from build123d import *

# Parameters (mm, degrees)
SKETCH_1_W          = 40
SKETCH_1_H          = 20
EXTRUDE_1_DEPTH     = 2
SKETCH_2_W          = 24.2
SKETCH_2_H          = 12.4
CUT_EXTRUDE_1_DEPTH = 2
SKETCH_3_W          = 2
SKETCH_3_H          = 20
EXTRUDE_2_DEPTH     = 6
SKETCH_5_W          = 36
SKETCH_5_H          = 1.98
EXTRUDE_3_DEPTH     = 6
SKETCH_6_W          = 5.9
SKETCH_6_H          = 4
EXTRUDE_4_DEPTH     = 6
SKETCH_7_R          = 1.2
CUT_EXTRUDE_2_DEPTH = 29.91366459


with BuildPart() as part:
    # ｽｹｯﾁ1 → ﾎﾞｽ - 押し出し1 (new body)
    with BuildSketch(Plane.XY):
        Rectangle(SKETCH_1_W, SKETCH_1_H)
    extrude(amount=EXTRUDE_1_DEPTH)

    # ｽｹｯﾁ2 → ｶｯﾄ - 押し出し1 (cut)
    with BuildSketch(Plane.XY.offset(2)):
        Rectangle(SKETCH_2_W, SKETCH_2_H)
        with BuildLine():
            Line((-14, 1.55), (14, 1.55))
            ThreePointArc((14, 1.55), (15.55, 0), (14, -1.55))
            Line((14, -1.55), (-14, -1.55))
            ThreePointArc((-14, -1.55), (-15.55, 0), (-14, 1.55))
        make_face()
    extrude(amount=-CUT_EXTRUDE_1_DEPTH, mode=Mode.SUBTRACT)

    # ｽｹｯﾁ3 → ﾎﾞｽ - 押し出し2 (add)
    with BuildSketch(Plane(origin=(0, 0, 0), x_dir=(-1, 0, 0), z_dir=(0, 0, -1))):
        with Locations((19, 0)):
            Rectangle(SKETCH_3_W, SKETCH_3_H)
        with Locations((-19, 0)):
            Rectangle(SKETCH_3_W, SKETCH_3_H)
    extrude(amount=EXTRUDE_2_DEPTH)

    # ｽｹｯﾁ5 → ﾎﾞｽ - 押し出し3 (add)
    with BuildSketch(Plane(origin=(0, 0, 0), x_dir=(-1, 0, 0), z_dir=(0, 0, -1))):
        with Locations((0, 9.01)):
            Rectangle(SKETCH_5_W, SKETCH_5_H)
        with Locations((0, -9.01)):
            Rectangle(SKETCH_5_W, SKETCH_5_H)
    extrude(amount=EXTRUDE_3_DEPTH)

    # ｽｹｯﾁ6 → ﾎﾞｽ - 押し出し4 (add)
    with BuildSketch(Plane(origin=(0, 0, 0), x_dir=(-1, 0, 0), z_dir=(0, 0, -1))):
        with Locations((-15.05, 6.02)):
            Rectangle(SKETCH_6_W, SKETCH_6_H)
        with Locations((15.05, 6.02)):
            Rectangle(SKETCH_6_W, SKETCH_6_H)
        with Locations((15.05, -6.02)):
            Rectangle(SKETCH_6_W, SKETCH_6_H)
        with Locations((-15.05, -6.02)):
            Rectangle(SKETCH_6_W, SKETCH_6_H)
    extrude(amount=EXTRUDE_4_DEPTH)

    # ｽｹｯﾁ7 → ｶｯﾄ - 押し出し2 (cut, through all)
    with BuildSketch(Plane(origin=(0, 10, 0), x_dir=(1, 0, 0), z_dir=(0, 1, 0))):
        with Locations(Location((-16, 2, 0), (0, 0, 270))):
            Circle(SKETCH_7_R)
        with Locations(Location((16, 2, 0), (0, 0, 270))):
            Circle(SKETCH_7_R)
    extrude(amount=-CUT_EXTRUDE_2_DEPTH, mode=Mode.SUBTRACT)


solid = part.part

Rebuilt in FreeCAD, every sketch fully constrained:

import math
import FreeCAD as App
import Part
import Sketcher

V = App.Vector

doc = App.newDocument("Part")
body = doc.addObject("PartDesign::Body", "Body")

# Sketch on XY plane
sketch1 = body.newObject("Sketcher::SketchObject", "Sketch")
sketch1.AttachmentSupport = (doc.getObject("XY_Plane"), [""])
sketch1.MapMode = "FlatFace"
sketch1.addGeometry([
    Part.LineSegment(V(-20, 10, 0), V(-20, -10, 0)),
    Part.LineSegment(V(-20, -10, 0), V(20, -10, 0)),
    Part.LineSegment(V(20, -10, 0), V(20, 10, 0)),
    Part.LineSegment(V(20, 10, 0), V(-20, 10, 0)),
], False)
sketch1.addConstraint([
    Sketcher.Constraint("Coincident", 0, 2, 1, 1),
    Sketcher.Constraint("Coincident", 1, 2, 2, 1),
    Sketcher.Constraint("Coincident", 2, 2, 3, 1),
    Sketcher.Constraint("Coincident", 3, 2, 0, 1),
    Sketcher.Constraint("Vertical", 0),
    Sketcher.Constraint("Horizontal", 1),
    Sketcher.Constraint("Vertical", 2),
    Sketcher.Constraint("Horizontal", 3),
    Sketcher.Constraint("Symmetric", 0, 2, 2, 2, -1, 1),
    Sketcher.Constraint("DistanceX", 1, 1, 1, 2, 40.0),
    Sketcher.Constraint("DistanceY", 0, 2, 0, 1, 20.0),
])
pad1 = body.newObject("PartDesign::Pad", "Pad")
pad1.Profile = sketch1
pad1.Length = 2

# Sketch on XY plane
sketch2 = body.newObject("Sketcher::SketchObject", "Sketch001")
sketch2.AttachmentSupport = (doc.getObject("XY_Plane"), [""])
sketch2.MapMode = "FlatFace"
sketch2.AttachmentOffset = App.Placement(V(0, 0, 2), App.Rotation())
sketch2.addGeometry([
    Part.LineSegment(V(-12.1, -1.55, 0), V(-12.1, -6.2, 0)),  # 0
    Part.LineSegment(V(-12.1, -6.2, 0), V(12.1, -6.2, 0)),  # 1
    Part.LineSegment(V(12.1, -6.2, 0), V(12.1, -1.55, 0)),  # 2
    Part.LineSegment(V(12.1, -1.55, 0), V(14, -1.55, 0)),  # 3
    Part.ArcOfCircle(Part.Circle(V(14, 0, 0), V(0, 0, 1), 1.55), math.radians(-90), math.radians(90)),  # 4
    Part.LineSegment(V(14, 1.55, 0), V(12.1, 1.55, 0)),  # 5
    Part.LineSegment(V(12.1, 1.55, 0), V(12.1, 6.2, 0)),  # 6
    Part.LineSegment(V(12.1, 6.2, 0), V(-12.1, 6.2, 0)),  # 7
    Part.LineSegment(V(-12.1, 6.2, 0), V(-12.1, 1.55, 0)),  # 8
    Part.LineSegment(V(-12.1, 1.55, 0), V(-14, 1.55, 0)),  # 9
    Part.ArcOfCircle(Part.Circle(V(-14, 0, 0), V(0, 0, 1), 1.55), math.radians(90), math.radians(270)),  # 10
    Part.LineSegment(V(-14, -1.55, 0), V(-12.1, -1.55, 0)),  # 11
], False)
sketch2.addConstraint([
    Sketcher.Constraint("Coincident", 0, 2, 1, 1),
    Sketcher.Constraint("Coincident", 1, 2, 2, 1),
    Sketcher.Constraint("Coincident", 2, 2, 3, 1),
    Sketcher.Constraint("Tangent", 3, 2, 4, 1),
    Sketcher.Constraint("Tangent", 4, 2, 5, 1),
    Sketcher.Constraint("Coincident", 5, 2, 6, 1),
    Sketcher.Constraint("Coincident", 6, 2, 7, 1),
    Sketcher.Constraint("Coincident", 7, 2, 8, 1),
    Sketcher.Constraint("Coincident", 8, 2, 9, 1),
    Sketcher.Constraint("Tangent", 9, 2, 10, 1),
    Sketcher.Constraint("Tangent", 10, 2, 11, 1),
    Sketcher.Constraint("Coincident", 11, 2, 0, 1),
    Sketcher.Constraint("Vertical", 0),
    Sketcher.Constraint("Horizontal", 1),
    Sketcher.Constraint("Vertical", 2),
    Sketcher.Constraint("Horizontal", 3),
    Sketcher.Constraint("Horizontal", 5),
    Sketcher.Constraint("Vertical", 6),
    Sketcher.Constraint("Horizontal", 7),
    Sketcher.Constraint("Vertical", 8),
    Sketcher.Constraint("Horizontal", 9),
    Sketcher.Constraint("Horizontal", 11),
    Sketcher.Constraint("Equal", 4, 10),
    Sketcher.Constraint("Symmetric", 4, 3, 10, 3, -1, 1),
    Sketcher.Constraint("Symmetric", 0, 2, 6, 2, -1, 1),
    Sketcher.Constraint("Symmetric", 5, 2, 8, 2, -2),
    Sketcher.Constraint("Vertical", 2, 2, 5, 2),
    Sketcher.Constraint("Radius", 4, 1.55),
    Sketcher.Constraint("DistanceX", 1, 1, 1, 2, 24.2),
    Sketcher.Constraint("DistanceX", 3, 1, 3, 2, 1.9),
    Sketcher.Constraint("DistanceY", 0, 2, 0, 1, 4.65),
])
pocket1 = body.newObject("PartDesign::Pocket", "Pocket")
pocket1.Profile = sketch2
pocket1.Length = 2

# Sketch on XY plane
sketch3 = body.newObject("Sketcher::SketchObject", "Sketch002")
sketch3.AttachmentSupport = (doc.getObject("XY_Plane"), [""])
sketch3.MapMode = "FlatFace"
sketch3.addGeometry([
    Part.LineSegment(V(-18, 10, 0), V(-18, -10, 0)),  # 0
    Part.LineSegment(V(-18, -10, 0), V(-20, -10, 0)),  # 1
    Part.LineSegment(V(-20, -10, 0), V(-20, 10, 0)),  # 2
    Part.LineSegment(V(-20, 10, 0), V(-18, 10, 0)),  # 3
    Part.LineSegment(V(20, 10, 0), V(20, -10, 0)),  # 4
    Part.LineSegment(V(20, -10, 0), V(18, -10, 0)),  # 5
    Part.LineSegment(V(18, -10, 0), V(18, 10, 0)),  # 6
    Part.LineSegment(V(18, 10, 0), V(20, 10, 0)),  # 7
], False)
sketch3.addConstraint([
    Sketcher.Constraint("Coincident", 0, 2, 1, 1),
    Sketcher.Constraint("Coincident", 1, 2, 2, 1),
    Sketcher.Constraint("Coincident", 2, 2, 3, 1),
    Sketcher.Constraint("Coincident", 3, 2, 0, 1),
    Sketcher.Constraint("Coincident", 4, 2, 5, 1),
    Sketcher.Constraint("Coincident", 5, 2, 6, 1),
    Sketcher.Constraint("Coincident", 6, 2, 7, 1),
    Sketcher.Constraint("Coincident", 7, 2, 4, 1),
    Sketcher.Constraint("Vertical", 0),
    Sketcher.Constraint("Horizontal", 1),
    Sketcher.Constraint("Vertical", 2),
    Sketcher.Constraint("Horizontal", 3),
    Sketcher.Constraint("Vertical", 4),
    Sketcher.Constraint("Horizontal", 5),
    Sketcher.Constraint("Vertical", 6),
    Sketcher.Constraint("Horizontal", 7),
    Sketcher.Constraint("Symmetric", 2, 2, 4, 2, -1, 1),
    Sketcher.Constraint("Symmetric", 0, 2, 6, 2, -1, 1),
    Sketcher.Constraint("Horizontal", 1, 2, 4, 2),
    Sketcher.Constraint("DistanceX", 1, 2, 1, 1, 2.0),
    Sketcher.Constraint("DistanceY", 0, 2, 0, 1, 20.0),
    Sketcher.Constraint("DistanceX", 0, 2, -1, 1, 18.0),
])
pad2 = body.newObject("PartDesign::Pad", "Pad001")
pad2.Profile = sketch3
pad2.Length = 6
pad2.Reversed = True

# Sketch on XY plane
sketch4 = body.newObject("Sketcher::SketchObject", "Sketch003")
sketch4.AttachmentSupport = (doc.getObject("XY_Plane"), [""])
sketch4.MapMode = "FlatFace"
sketch4.addGeometry([
    Part.LineSegment(V(18, 10, 0), V(18, 8.02, 0)),  # 0
    Part.LineSegment(V(18, 8.02, 0), V(-18, 8.02, 0)),  # 1
    Part.LineSegment(V(-18, 8.02, 0), V(-18, 10, 0)),  # 2
    Part.LineSegment(V(-18, 10, 0), V(18, 10, 0)),  # 3
    Part.LineSegment(V(18, -8.02, 0), V(18, -10, 0)),  # 4
    Part.LineSegment(V(18, -10, 0), V(-18, -10, 0)),  # 5
    Part.LineSegment(V(-18, -10, 0), V(-18, -8.02, 0)),  # 6
    Part.LineSegment(V(-18, -8.02, 0), V(18, -8.02, 0)),  # 7
], False)
sketch4.addConstraint([
    Sketcher.Constraint("Coincident", 0, 2, 1, 1),
    Sketcher.Constraint("Coincident", 1, 2, 2, 1),
    Sketcher.Constraint("Coincident", 2, 2, 3, 1),
    Sketcher.Constraint("Coincident", 3, 2, 0, 1),
    Sketcher.Constraint("Coincident", 4, 2, 5, 1),
    Sketcher.Constraint("Coincident", 5, 2, 6, 1),
    Sketcher.Constraint("Coincident", 6, 2, 7, 1),
    Sketcher.Constraint("Coincident", 7, 2, 4, 1),
    Sketcher.Constraint("Vertical", 0),
    Sketcher.Constraint("Horizontal", 1),
    Sketcher.Constraint("Vertical", 2),
    Sketcher.Constraint("Horizontal", 3),
    Sketcher.Constraint("Vertical", 4),
    Sketcher.Constraint("Horizontal", 5),
    Sketcher.Constraint("Vertical", 6),
    Sketcher.Constraint("Horizontal", 7),
    Sketcher.Constraint("Symmetric", 2, 2, 4, 2, -1, 1),
    Sketcher.Constraint("Symmetric", 0, 2, 6, 2, -1, 1),
    Sketcher.Constraint("Vertical", 3, 2, 4, 2),
    Sketcher.Constraint("DistanceX", 1, 2, 1, 1, 36.0),
    Sketcher.Constraint("DistanceY", -1, 1, 2, 2, 10.0),
    Sketcher.Constraint("DistanceY", 0, 2, 0, 1, 1.98),
])
pad3 = body.newObject("PartDesign::Pad", "Pad002")
pad3.Profile = sketch4
pad3.Length = 6
pad3.Reversed = True

# Sketch on XY plane
sketch5 = body.newObject("Sketcher::SketchObject", "Sketch004")
sketch5.AttachmentSupport = (doc.getObject("XY_Plane"), [""])
sketch5.MapMode = "FlatFace"
sketch5.addGeometry([
    Part.LineSegment(V(18, 8.02, 0), V(18, 4.02, 0)),  # 0
    Part.LineSegment(V(18, 4.02, 0), V(12.1, 4.02, 0)),  # 1
    Part.LineSegment(V(12.1, 4.02, 0), V(12.1, 8.02, 0)),  # 2
    Part.LineSegment(V(12.1, 8.02, 0), V(18, 8.02, 0)),  # 3
    Part.LineSegment(V(-12.1, 8.02, 0), V(-12.1, 4.02, 0)),  # 4
    Part.LineSegment(V(-12.1, 4.02, 0), V(-18, 4.02, 0)),  # 5
    Part.LineSegment(V(-18, 4.02, 0), V(-18, 8.02, 0)),  # 6
    Part.LineSegment(V(-18, 8.02, 0), V(-12.1, 8.02, 0)),  # 7
    Part.LineSegment(V(-12.1, -4.02, 0), V(-12.1, -8.02, 0)),  # 8
    Part.LineSegment(V(-12.1, -8.02, 0), V(-18, -8.02, 0)),  # 9
    Part.LineSegment(V(-18, -8.02, 0), V(-18, -4.02, 0)),  # 10
    Part.LineSegment(V(-18, -4.02, 0), V(-12.1, -4.02, 0)),  # 11
    Part.LineSegment(V(18, -4.02, 0), V(18, -8.02, 0)),  # 12
    Part.LineSegment(V(18, -8.02, 0), V(12.1, -8.02, 0)),  # 13
    Part.LineSegment(V(12.1, -8.02, 0), V(12.1, -4.02, 0)),  # 14
    Part.LineSegment(V(12.1, -4.02, 0), V(18, -4.02, 0)),  # 15
], False)
sketch5.addConstraint([
    Sketcher.Constraint("Coincident", 0, 2, 1, 1),
    Sketcher.Constraint("Coincident", 1, 2, 2, 1),
    Sketcher.Constraint("Coincident", 2, 2, 3, 1),
    Sketcher.Constraint("Coincident", 3, 2, 0, 1),
    Sketcher.Constraint("Coincident", 4, 2, 5, 1),
    Sketcher.Constraint("Coincident", 5, 2, 6, 1),
    Sketcher.Constraint("Coincident", 6, 2, 7, 1),
    Sketcher.Constraint("Coincident", 7, 2, 4, 1),
    Sketcher.Constraint("Coincident", 8, 2, 9, 1),
    Sketcher.Constraint("Coincident", 9, 2, 10, 1),
    Sketcher.Constraint("Coincident", 10, 2, 11, 1),
    Sketcher.Constraint("Coincident", 11, 2, 8, 1),
    Sketcher.Constraint("Coincident", 12, 2, 13, 1),
    Sketcher.Constraint("Coincident", 13, 2, 14, 1),
    Sketcher.Constraint("Coincident", 14, 2, 15, 1),
    Sketcher.Constraint("Coincident", 15, 2, 12, 1),
    Sketcher.Constraint("Vertical", 0),
    Sketcher.Constraint("Horizontal", 1),
    Sketcher.Constraint("Vertical", 2),
    Sketcher.Constraint("Horizontal", 3),
    Sketcher.Constraint("Vertical", 4),
    Sketcher.Constraint("Horizontal", 5),
    Sketcher.Constraint("Vertical", 6),
    Sketcher.Constraint("Horizontal", 7),
    Sketcher.Constraint("Vertical", 8),
    Sketcher.Constraint("Horizontal", 9),
    Sketcher.Constraint("Vertical", 10),
    Sketcher.Constraint("Horizontal", 11),
    Sketcher.Constraint("Vertical", 12),
    Sketcher.Constraint("Horizontal", 13),
    Sketcher.Constraint("Vertical", 14),
    Sketcher.Constraint("Horizontal", 15),
    Sketcher.Constraint("Symmetric", 2, 2, 8, 2, -1, 1),
    Sketcher.Constraint("Symmetric", 0, 2, 10, 2, -1, 1),
    Sketcher.Constraint("Symmetric", 6, 2, 12, 2, -1, 1),
    Sketcher.Constraint("Symmetric", 4, 2, 14, 2, -1, 1),
    Sketcher.Constraint("Symmetric", 1, 2, 4, 2, -2),
    Sketcher.Constraint("Symmetric", 3, 2, 6, 2, -2),
    Sketcher.Constraint("DistanceY", 0, 2, 0, 1, 4.0),
    Sketcher.Constraint("DistanceX", 1, 2, 1, 1, 5.9),
    Sketcher.Constraint("DistanceX", -1, 1, 0, 2, 18.0),
    Sketcher.Constraint("DistanceY", -1, 1, 0, 2, 4.02),
])
pad4 = body.newObject("PartDesign::Pad", "Pad003")
pad4.Profile = sketch5
pad4.Length = 6
pad4.Reversed = True

# Sketch on XZ plane
sketch6 = body.newObject("Sketcher::SketchObject", "Sketch005")
sketch6.AttachmentSupport = (doc.getObject("XZ_Plane"), [""])
sketch6.MapMode = "FlatFace"
sketch6.AttachmentOffset = App.Placement(V(0, 0, -10), App.Rotation())
sketch6.addGeometry([
    Part.Circle(V(-16, -2, 0), V(0, 0, 1), 1.2),
    Part.Circle(V(16, -2, 0), V(0, 0, 1), 1.2),
], False)
sketch6.addConstraint([
    Sketcher.Constraint("Equal", 0, 1),
    Sketcher.Constraint("Symmetric", 0, 3, 1, 3, -2),
    Sketcher.Constraint("Diameter", 0, 2.4),
    Sketcher.Constraint("DistanceX", 0, 3, -1, 1, 16.0),
    Sketcher.Constraint("DistanceY", 0, 3, -1, 1, 2.0),
])
pocket2 = body.newObject("PartDesign::Pocket", "Pocket001")
pocket2.Profile = sketch6
pocket2.Type = "ThroughAll"
pocket2.Reversed = True

doc.recompute()
